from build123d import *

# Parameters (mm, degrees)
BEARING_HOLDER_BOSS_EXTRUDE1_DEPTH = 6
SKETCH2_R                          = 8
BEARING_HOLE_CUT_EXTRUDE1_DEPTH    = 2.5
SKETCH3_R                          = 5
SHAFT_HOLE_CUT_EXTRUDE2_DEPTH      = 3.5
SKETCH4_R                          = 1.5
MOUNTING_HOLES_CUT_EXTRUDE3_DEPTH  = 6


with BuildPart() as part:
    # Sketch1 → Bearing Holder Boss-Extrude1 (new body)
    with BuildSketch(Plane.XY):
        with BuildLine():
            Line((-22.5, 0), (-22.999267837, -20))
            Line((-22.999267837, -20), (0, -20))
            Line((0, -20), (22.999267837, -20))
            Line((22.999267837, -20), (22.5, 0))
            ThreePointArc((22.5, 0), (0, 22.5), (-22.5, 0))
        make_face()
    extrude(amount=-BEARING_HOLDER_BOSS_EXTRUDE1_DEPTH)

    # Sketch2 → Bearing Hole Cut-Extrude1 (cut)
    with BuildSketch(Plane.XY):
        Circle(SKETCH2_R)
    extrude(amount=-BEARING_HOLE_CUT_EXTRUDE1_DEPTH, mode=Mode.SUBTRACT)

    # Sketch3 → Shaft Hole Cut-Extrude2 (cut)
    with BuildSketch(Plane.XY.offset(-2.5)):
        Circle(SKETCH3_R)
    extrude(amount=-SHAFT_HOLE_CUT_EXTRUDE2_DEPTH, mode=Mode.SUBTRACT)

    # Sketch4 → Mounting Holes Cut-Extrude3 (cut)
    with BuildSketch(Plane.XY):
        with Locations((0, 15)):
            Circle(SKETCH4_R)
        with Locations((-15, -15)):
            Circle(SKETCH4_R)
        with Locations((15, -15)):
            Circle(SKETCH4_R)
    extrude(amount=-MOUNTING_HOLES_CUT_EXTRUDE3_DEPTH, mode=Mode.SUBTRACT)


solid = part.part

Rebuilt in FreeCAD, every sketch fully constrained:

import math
import FreeCAD as App
import Part
import Sketcher

V = App.Vector
Q = App.Units.Quantity

doc = App.newDocument("Part")
params = doc.addObject("Spreadsheet::Sheet", "Params")
for row, (alias, value) in enumerate([
    ("sketch1_radius", "22.5 mm"),
    ("pad1_length", "6 mm"),
    ("sketch2_diameter", "16 mm"),
    ("pocket1_length", "2.5 mm"),
    ("sketch3_diameter", "10 mm"),
    ("pocket2_length", "3.5 mm"),
    ("sketch4_diameter", "3 mm"),
    ("pocket3_length", "6 mm"),
], start=1):
    params.set(f"A{row}", alias)
    params.set(f"B{row}", "=" + value)
    params.setAlias(f"B{row}", alias)

body = doc.addObject("PartDesign::Body", "Body")

sketch1 = body.newObject("Sketcher::SketchObject", "Sketch")
sketch1.AttachmentSupport = (doc.getObject("XY_Plane"), [""])
sketch1.MapMode = "FlatFace"
sketch1.addGeometry(Part.LineSegment(V(-22, 0, 0), V(-23, -20, 0)), False)
sketch1.addGeometry(Part.LineSegment(V(-23, -20, 0), V(23, -20, 0)), False)
sketch1.addGeometry(Part.LineSegment(V(23, -20, 0), V(22, 0, 0)), False)
sketch1.addGeometry(Part.ArcOfCircle(Part.Circle(V(0, 0, 0), V(0, 0, 1), 22), math.radians(0), math.radians(180)), False)
sketch1.addConstraint(Sketcher.Constraint("Coincident", 0, 2, 1, 1))
sketch1.addConstraint(Sketcher.Constraint("Coincident", 1, 2, 2, 1))
sketch1.addConstraint(Sketcher.Constraint("Coincident", 2, 2, 3, 1))
sketch1.addConstraint(Sketcher.Constraint("Coincident", 3, 2, 0, 1))
sketch1.addConstraint(Sketcher.Constraint("Horizontal", 1))
sketch1.addConstraint(Sketcher.Constraint("Coincident", 3, 3, -1, 1))
sketch1.addConstraint(Sketcher.Constraint("PointOnObject", 2, 2, -1))
sketch1.addConstraint(Sketcher.Constraint("PointOnObject", 3, 2, -1))
sketch1.addConstraint(Sketcher.Constraint("Equal", 0, 2))
sketch1.addConstraint(Sketcher.Constraint("Radius", 3, Q("22.5 mm")))
sketch1.addConstraint(Sketcher.Constraint("DistanceY", 0, 2, -1, 1, Q("20 mm")))
sketch1.addConstraint(Sketcher.Constraint("Angle", 0, Q("-91.43 deg")))
sketch1.setExpression("Constraints[9]", "Params.sketch1_radius")
pad1 = body.newObject("PartDesign::Pad", "Pad")
pad1.Profile = sketch1
pad1.setExpression("Length", "Params.pad1_length")
pad1.Reversed = True

sketch2 = body.newObject("Sketcher::SketchObject", "Sketch001")
sketch2.AttachmentSupport = (doc.getObject("XY_Plane"), [""])
sketch2.MapMode = "FlatFace"
sketch2.addGeometry(Part.Circle(V(0, 0, 0), V(0, 0, 1), 8), False)
sketch2.addConstraint(Sketcher.Constraint("Coincident", 0, 3, -1, 1))
sketch2.addConstraint(Sketcher.Constraint("Diameter", 0, Q("16 mm")))
sketch2.setExpression("Constraints[1]", "Params.sketch2_diameter")
pocket1 = body.newObject("PartDesign::Pocket", "Pocket")
pocket1.Profile = sketch2
pocket1.setExpression("Length", "Params.pocket1_length")

sketch3 = body.newObject("Sketcher::SketchObject", "Sketch002")
sketch3.AttachmentSupport = (doc.getObject("XY_Plane"), [""])
sketch3.MapMode = "FlatFace"
sketch3.AttachmentOffset = App.Placement(V(0, 0, -2.5), App.Rotation())
sketch3.addGeometry(Part.Circle(V(0, 0, 0), V(0, 0, 1), 5), False)
sketch3.addConstraint(Sketcher.Constraint("Coincident", 0, 3, -1, 1))
sketch3.addConstraint(Sketcher.Constraint("Diameter", 0, Q("10 mm")))
sketch3.setExpression("Constraints[1]", "Params.sketch3_diameter")
pocket2 = body.newObject("PartDesign::Pocket", "Pocket001")
pocket2.Profile = sketch3
pocket2.setExpression("Length", "Params.pocket2_length")

sketch4 = body.newObject("Sketcher::SketchObject", "Sketch003")
sketch4.AttachmentSupport = (doc.getObject("XY_Plane"), [""])
sketch4.MapMode = "FlatFace"
sketch4.addGeometry(Part.Circle(V(0, 15, 0), V(0, 0, 1), 1.5), False)
sketch4.addGeometry(Part.Circle(V(-15, -15, 0), V(0, 0, 1), 1.5), False)
sketch4.addGeometry(Part.Circle(V(15, -15, 0), V(0, 0, 1), 1.5), False)
sketch4.addConstraint(Sketcher.Constraint("Equal", 0, 1))
sketch4.addConstraint(Sketcher.Constraint("Equal", 1, 2))
sketch4.addConstraint(Sketcher.Constraint("Symmetric", 1, 3, 2, 3, -2))
sketch4.addConstraint(Sketcher.Constraint("PointOnObject", 0, 3, -2))
sketch4.addConstraint(Sketcher.Constraint("Diameter", 0, Q("3 mm")))
sketch4.addConstraint(Sketcher.Constraint("DistanceY", -1, 1, 0, 3, Q("15 mm")))
sketch4.addConstraint(Sketcher.Constraint("DistanceX", 1, 3, -1, 1, Q("15 mm")))
sketch4.addConstraint(Sketcher.Constraint("DistanceY", 1, 3, -1, 1, Q("15 mm")))
sketch4.setExpression("Constraints[4]", "Params.sketch4_diameter")
pocket3 = body.newObject("PartDesign::Pocket", "Pocket002")
pocket3.Profile = sketch4
pocket3.setExpression("Length", "Params.pocket3_length")

doc.recompute()
